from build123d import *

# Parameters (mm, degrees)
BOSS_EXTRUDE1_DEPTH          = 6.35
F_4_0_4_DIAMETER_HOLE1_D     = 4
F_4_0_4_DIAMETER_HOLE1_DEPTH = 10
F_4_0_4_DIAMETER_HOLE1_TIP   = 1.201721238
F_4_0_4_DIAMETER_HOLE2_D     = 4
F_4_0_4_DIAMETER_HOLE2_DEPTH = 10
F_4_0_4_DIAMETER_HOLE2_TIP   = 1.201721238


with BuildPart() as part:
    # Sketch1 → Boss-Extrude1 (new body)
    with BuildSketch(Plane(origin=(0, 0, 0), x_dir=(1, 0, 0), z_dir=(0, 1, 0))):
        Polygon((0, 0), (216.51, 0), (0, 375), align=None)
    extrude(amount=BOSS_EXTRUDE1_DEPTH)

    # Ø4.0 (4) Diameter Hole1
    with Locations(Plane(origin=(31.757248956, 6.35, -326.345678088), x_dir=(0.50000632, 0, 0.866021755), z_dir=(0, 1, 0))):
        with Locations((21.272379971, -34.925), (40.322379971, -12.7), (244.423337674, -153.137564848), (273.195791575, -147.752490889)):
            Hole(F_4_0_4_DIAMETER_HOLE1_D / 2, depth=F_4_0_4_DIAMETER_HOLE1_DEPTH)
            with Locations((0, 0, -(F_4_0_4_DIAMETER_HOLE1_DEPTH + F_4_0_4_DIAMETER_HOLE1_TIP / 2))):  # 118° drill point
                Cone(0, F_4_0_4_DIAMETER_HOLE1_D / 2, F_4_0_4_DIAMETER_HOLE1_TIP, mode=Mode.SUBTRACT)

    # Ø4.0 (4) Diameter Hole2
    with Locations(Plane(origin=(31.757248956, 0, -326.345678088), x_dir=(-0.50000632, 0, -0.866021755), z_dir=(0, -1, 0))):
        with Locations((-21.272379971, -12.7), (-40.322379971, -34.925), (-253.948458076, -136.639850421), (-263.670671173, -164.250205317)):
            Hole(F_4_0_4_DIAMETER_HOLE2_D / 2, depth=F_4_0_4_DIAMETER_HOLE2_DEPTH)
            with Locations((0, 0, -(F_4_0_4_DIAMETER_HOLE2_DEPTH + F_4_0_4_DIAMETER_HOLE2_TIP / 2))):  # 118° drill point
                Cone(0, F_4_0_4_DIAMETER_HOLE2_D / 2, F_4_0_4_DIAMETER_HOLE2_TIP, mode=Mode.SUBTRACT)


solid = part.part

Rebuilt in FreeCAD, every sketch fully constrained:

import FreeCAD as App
import Part
import Sketcher
Q = App.Units.Quantity


def add_polygon(sketch, points):
    """Adds a closed chain of lines whose ends are joined by coincident constraints."""
    first, n = sketch.GeometryCount, len(points)
    for a, b in zip(points, points[1:] + points[:1]):
        sketch.addGeometry(Part.LineSegment(App.Vector(*a, 0), App.Vector(*b, 0)), False)
    for i in range(n):
        sketch.addConstraint(Sketcher.Constraint("Coincident", first + i, 2, first + (i + 1) % n, 1))

doc = App.newDocument("Part")
body = doc.addObject("PartDesign::Body", "Body")

# Sketch on XZ plane
sketch1 = body.newObject("Sketcher::SketchObject", "Sketch")
sketch1.AttachmentSupport = (doc.getObject("XZ_Plane"), [""])
sketch1.MapMode = "FlatFace"
add_polygon(sketch1, [(0, 0), (216.51, 0), (0, -375)])  # lines 0-2
sketch1.addConstraint([
    Sketcher.Constraint("Horizontal", 0),
    Sketcher.Constraint("Vertical", 2),
    Sketcher.Constraint("Coincident", 2, 2, -1, 1),
    Sketcher.Constraint("DistanceY", 2, 1, 2, 2, Q("375 mm")),
    Sketcher.Constraint("DistanceX", 0, 1, 0, 2, Q("216.51 mm")),
])
pad1 = body.newObject("PartDesign::Pad", "Pad")
pad1.Profile = sketch1
pad1.Length = 6.35
pad1.Reversed = True

# Sketch on XZ plane
sketch2 = body.newObject("Sketcher::SketchObject", "Sketch001")
sketch2.AttachmentSupport = (doc.getObject("XZ_Plane"), [""])
sketch2.MapMode = "FlatFace"
sketch2.AttachmentOffset = App.Placement(App.Vector(0, 0, -6.35), App.Rotation())
sketch2.addGeometry([
    Part.Circle(App.Vector(12.147764, -290.460614, 0), App.Vector(0, 0, 1), 2),
    Part.Circle(App.Vector(40.920217, -285.07554, 0), App.Vector(0, 0, 1), 2),
    Part.Circle(App.Vector(21.35, -38.1, 0), App.Vector(0, 0, 1), 2),
    Part.Circle(App.Vector(40.4, -15.875, 0), App.Vector(0, 0, 1), 2),
], False)
sketch2.addConstraint([
    Sketcher.Constraint("Equal", 0, 1),
    Sketcher.Constraint("Equal", 1, 2),
    Sketcher.Constraint("Equal", 2, 3),
    Sketcher.Constraint("Diameter", 0, Q("4 mm")),
    Sketcher.Constraint("DistanceY", 2, 3, -1, 1, Q("38.1 mm")),
    Sketcher.Constraint("DistanceX", -1, 1, 3, 3, Q("40.4 mm")),
    Sketcher.Constraint("DistanceX", -1, 1, 2, 3, Q("21.35 mm")),
    Sketcher.Constraint("DistanceY", 3, 3, -1, 1, Q("15.875 mm")),
    Sketcher.Constraint("DistanceY", 1, 3, -1, 1, Q("285.07554 mm")),
    Sketcher.Constraint("DistanceX", -1, 1, 0, 3, Q("12.147764 mm")),
    Sketcher.Constraint("DistanceY", 0, 3, -1, 1, Q("290.460614 mm")),
    Sketcher.Constraint("DistanceX", -1, 1, 1, 3, Q("40.920217 mm")),
])
doc.recompute()
hole = body.newObject("PartDesign::Hole", "Hole")
hole.Profile = sketch2
hole.ThreadType = "None"
hole.Diameter = 4
hole.DepthType = "Dimension"
hole.Depth = 10
hole.DrillPoint = "Angled"
hole.DrillPointAngle = 118
hole.Reversed = True

# Sketch on XZ plane
sketch3 = body.newObject("Sketcher::SketchObject", "Sketch002")
sketch3.AttachmentSupport = (doc.getObject("XZ_Plane"), [""])
sketch3.MapMode = "FlatFace"
sketch3.addGeometry([
    Part.Circle(App.Vector(31.395097, -301.573254, 0), App.Vector(0, 0, 1), 2),
    Part.Circle(App.Vector(21.672884, -273.962899, 0), App.Vector(0, 0, 1), 2),
    Part.Circle(App.Vector(40.4, -38.1, 0), App.Vector(0, 0, 1), 2),
    Part.Circle(App.Vector(21.35, -15.875, 0), App.Vector(0, 0, 1), 2),
], False)
sketch3.addConstraint([
    Sketcher.Constraint("Equal", 0, 1),
    Sketcher.Constraint("Equal", 1, 2),
    Sketcher.Constraint("Equal", 2, 3),
    Sketcher.Constraint("Diameter", 0, Q("4 mm")),
    Sketcher.Constraint("DistanceX", -1, 1, 2, 3, Q("40.4 mm")),
    Sketcher.Constraint("DistanceY", 2, 3, -1, 1, Q("38.1 mm")),
    Sketcher.Constraint("DistanceX", -1, 1, 3, 3, Q("21.35 mm")),
    Sketcher.Constraint("DistanceY", 3, 3, -1, 1, Q("15.875 mm")),
    Sketcher.Constraint("DistanceY", 1, 3, -1, 1, Q("273.962899 mm")),
    Sketcher.Constraint("DistanceX", -1, 1, 0, 3, Q("31.395097 mm")),
    Sketcher.Constraint("DistanceY", 0, 3, -1, 1, Q("301.573254 mm")),
    Sketcher.Constraint("DistanceX", -1, 1, 1, 3, Q("21.672884 mm")),
])
doc.recompute()
hole2 = body.newObject("PartDesign::Hole", "Hole001")
hole2.Profile = sketch3
hole2.ThreadType = "None"
hole2.Diameter = 4
hole2.DepthType = "Dimension"
hole2.Depth = 10
hole2.DrillPoint = "Angled"
hole2.DrillPointAngle = 118

doc.recompute()
